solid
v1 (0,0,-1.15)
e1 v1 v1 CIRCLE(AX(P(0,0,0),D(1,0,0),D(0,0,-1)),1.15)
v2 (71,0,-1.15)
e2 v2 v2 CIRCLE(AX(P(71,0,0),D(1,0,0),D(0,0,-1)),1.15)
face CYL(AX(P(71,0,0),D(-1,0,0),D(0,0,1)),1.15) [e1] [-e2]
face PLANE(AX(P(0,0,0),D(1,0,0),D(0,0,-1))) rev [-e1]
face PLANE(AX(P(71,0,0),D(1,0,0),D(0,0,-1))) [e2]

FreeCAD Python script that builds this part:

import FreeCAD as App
import Part
import Sketcher

doc = App.newDocument("Part")
body = doc.addObject("PartDesign::Body", "Body")

sketch1 = body.newObject("Sketcher::SketchObject", "Sketch")
sketch1.AttachmentSupport = (doc.getObject("YZ_Plane"), [""])
sketch1.MapMode = "FlatFace"
sketch1.addGeometry(Part.Circle(App.Vector(0, 0, 0), App.Vector(0, 0, 1), 1.1), False)
sketch1.addConstraint(Sketcher.Constraint("Coincident", 0, 3, -1, 1))
sketch1.addConstraint(Sketcher.Constraint("Diameter", 0, 2.3))
pad1 = body.newObject("PartDesign::Pad", "Pad")
pad1.Profile = sketch1
pad1.Length = 71

doc.recompute()
